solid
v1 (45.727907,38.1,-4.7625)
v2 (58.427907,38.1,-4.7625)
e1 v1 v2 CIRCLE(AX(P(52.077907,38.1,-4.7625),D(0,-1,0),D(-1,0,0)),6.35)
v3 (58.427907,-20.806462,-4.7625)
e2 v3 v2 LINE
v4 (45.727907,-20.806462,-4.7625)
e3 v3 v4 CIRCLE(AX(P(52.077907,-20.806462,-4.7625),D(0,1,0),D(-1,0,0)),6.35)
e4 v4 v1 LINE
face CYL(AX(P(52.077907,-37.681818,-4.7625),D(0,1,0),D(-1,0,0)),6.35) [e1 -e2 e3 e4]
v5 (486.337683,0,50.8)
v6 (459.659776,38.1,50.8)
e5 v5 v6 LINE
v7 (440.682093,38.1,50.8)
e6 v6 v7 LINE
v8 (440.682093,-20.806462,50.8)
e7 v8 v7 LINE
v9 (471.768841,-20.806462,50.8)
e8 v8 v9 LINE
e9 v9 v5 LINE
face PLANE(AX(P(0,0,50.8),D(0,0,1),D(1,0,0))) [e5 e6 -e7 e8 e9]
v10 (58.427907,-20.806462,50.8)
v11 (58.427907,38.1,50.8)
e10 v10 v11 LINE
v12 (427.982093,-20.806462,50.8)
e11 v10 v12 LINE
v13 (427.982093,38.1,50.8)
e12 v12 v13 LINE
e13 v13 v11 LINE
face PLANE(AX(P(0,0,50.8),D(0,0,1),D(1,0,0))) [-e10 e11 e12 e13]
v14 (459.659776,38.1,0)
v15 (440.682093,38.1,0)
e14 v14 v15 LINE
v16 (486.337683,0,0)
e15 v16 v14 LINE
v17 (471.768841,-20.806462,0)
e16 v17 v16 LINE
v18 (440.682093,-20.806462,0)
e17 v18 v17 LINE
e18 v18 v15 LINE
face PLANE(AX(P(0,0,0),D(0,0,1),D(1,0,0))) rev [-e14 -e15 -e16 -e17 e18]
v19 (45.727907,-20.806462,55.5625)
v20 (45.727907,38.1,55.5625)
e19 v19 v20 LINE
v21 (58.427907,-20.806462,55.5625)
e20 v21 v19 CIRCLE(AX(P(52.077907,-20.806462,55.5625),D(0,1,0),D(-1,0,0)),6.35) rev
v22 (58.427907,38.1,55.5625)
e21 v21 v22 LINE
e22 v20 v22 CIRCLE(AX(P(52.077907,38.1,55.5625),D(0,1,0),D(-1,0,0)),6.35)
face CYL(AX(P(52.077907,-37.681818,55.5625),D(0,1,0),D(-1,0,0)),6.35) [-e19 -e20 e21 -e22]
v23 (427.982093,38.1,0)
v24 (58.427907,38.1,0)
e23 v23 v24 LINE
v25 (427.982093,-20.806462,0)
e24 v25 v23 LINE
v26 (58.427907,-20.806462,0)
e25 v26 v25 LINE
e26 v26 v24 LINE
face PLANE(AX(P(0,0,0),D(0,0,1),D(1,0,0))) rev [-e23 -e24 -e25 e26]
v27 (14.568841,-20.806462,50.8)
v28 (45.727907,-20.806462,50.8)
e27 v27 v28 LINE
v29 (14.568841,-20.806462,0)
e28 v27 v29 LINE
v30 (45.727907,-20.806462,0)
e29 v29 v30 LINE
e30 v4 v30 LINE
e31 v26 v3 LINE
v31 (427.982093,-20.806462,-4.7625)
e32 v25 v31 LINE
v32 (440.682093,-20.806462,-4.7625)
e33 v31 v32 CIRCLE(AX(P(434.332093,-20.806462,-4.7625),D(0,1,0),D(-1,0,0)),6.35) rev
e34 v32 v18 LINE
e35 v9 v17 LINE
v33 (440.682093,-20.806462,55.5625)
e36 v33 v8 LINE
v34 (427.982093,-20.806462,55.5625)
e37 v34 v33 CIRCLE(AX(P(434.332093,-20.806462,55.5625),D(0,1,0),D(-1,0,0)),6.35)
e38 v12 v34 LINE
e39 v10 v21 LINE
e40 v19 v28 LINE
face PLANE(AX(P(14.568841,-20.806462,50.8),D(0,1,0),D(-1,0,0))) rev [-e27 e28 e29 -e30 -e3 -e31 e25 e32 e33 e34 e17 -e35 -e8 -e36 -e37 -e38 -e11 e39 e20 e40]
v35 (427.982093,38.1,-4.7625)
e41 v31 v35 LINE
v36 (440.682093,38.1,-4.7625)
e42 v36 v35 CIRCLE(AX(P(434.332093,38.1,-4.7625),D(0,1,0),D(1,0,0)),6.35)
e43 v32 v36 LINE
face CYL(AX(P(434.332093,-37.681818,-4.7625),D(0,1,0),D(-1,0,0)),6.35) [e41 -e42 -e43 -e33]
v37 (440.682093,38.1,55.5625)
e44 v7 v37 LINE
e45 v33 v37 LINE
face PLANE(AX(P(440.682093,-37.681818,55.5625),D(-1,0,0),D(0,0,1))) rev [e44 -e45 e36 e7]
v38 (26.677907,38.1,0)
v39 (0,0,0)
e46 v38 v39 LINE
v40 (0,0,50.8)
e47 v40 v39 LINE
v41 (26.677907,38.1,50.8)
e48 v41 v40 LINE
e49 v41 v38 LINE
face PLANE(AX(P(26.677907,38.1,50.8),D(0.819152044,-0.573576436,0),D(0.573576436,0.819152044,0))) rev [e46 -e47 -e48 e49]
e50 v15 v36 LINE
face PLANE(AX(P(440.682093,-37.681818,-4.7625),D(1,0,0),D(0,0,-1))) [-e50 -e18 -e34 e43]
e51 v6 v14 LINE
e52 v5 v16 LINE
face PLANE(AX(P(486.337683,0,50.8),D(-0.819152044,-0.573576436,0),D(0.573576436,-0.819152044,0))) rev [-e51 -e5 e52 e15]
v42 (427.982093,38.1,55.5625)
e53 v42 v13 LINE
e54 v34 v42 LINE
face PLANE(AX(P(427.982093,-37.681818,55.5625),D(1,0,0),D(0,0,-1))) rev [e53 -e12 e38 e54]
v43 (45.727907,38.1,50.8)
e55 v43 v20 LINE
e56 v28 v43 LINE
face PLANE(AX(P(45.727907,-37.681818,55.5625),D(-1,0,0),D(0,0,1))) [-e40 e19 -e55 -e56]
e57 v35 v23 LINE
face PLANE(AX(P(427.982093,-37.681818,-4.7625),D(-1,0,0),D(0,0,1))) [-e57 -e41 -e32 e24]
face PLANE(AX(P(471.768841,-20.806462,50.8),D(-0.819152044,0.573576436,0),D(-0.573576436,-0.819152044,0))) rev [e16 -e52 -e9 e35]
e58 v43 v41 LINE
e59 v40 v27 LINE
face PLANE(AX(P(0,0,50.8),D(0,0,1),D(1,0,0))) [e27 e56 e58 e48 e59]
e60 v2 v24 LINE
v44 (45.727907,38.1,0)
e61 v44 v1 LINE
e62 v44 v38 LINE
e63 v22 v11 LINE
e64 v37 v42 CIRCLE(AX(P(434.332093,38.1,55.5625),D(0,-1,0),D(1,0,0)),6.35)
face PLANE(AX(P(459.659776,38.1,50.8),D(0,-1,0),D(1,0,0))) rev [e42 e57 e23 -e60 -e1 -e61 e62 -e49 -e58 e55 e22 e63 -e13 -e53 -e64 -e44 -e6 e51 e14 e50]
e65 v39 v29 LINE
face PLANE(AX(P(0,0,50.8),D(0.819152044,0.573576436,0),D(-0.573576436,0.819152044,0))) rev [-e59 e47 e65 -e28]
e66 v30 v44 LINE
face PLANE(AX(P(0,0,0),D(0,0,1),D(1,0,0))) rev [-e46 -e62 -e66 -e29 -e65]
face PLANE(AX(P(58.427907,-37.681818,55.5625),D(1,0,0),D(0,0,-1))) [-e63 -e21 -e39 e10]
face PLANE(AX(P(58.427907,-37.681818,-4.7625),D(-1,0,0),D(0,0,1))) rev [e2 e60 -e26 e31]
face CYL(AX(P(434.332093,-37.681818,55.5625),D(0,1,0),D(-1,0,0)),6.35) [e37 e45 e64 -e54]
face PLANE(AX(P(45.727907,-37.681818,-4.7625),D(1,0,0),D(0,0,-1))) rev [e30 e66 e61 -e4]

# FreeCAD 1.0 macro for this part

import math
import FreeCAD as App
import Part
import Sketcher
from FreeCAD import Vector
Q = App.Units.Quantity

doc = App.newDocument("Part")
body = doc.addObject("PartDesign::Body", "Body")

sketch1 = body.newObject("Sketcher::SketchObject", "Sketch")
sketch1.AttachmentSupport = (doc.getObject("XY_Plane"), [""])
sketch1.MapMode = "FlatFace"
sketch1.addGeometry([
    Part.LineSegment(Vector(0, 0, 0), Vector(15, -21, 0)),
    Part.LineSegment(Vector(15, -21, 0), Vector(472, -21, 0)),
    Part.LineSegment(Vector(472, -21, 0), Vector(486, 0, 0)),
    Part.LineSegment(Vector(486, 0, 0), Vector(460, 38, 0)),
    Part.LineSegment(Vector(460, 38, 0), Vector(27, 38, 0)),
    Part.LineSegment(Vector(27, 38, 0), Vector(0, 0, 0)),
], False)
sketch1.addConstraint([
    Sketcher.Constraint("Coincident", 0, 2, 1, 1),
    Sketcher.Constraint("Coincident", 1, 2, 2, 1),
    Sketcher.Constraint("Coincident", 2, 2, 3, 1),
    Sketcher.Constraint("Coincident", 3, 2, 4, 1),
    Sketcher.Constraint("Coincident", 4, 2, 5, 1),
    Sketcher.Constraint("Coincident", 5, 2, 0, 1),
    Sketcher.Constraint("Horizontal", 1),
    Sketcher.Constraint("Horizontal", 4),
    Sketcher.Constraint("Coincident", 5, 2, -1, 1),
    Sketcher.Constraint("PointOnObject", 2, 2, -1),
    Sketcher.Constraint("Parallel", 0, 3),
    Sketcher.Constraint("Parallel", 2, 5),
    Sketcher.Constraint("Equal", 0, 2),
    Sketcher.Constraint("DistanceX", 1, 1, 1, 2, Q("18 in")),
    Sketcher.Constraint("Distance", 0, Q("1 in")),
    Sketcher.Constraint("Angle", 0, Q("-55 deg")),
    Sketcher.Constraint("DistanceY", -1, 1, 3, 2, Q("1.5 in")),
])
pad1 = body.newObject("PartDesign::Pad", "Pad")
pad1.Profile = sketch1
pad1.Length = Q("2 in")

sketch2 = body.newObject("Sketcher::SketchObject", "Sketch001")
sketch2.AttachmentSupport = (doc.getObject("XZ_Plane"), [""])
sketch2.MapMode = "FlatFace"
sketch2.AttachmentOffset = App.Placement(Vector(0, 0, -1.5 * 25.4), App.Rotation())
sketch2.addGeometry([
    Part.LineSegment(Vector(45.7, 50.8, 0), Vector(45.7, 55.6, 0)),
    Part.ArcOfCircle(Part.Circle(Vector(52.1, 55.6, 0), Vector(0, 0, 1), 6.3), math.radians(0), math.radians(180)),
    Part.LineSegment(Vector(58.4, 55.6, 0), Vector(58.4, 50.8, 0)),
    Part.LineSegment(Vector(58.4, 50.8, 0), Vector(45.7, 50.8, 0)),
], False)
sketch2.addConstraint([
    Sketcher.Constraint("Tangent", 0, 2, 1, 2),
    Sketcher.Constraint("Tangent", 1, 1, 2, 1),
    Sketcher.Constraint("Coincident", 2, 2, 3, 1),
    Sketcher.Constraint("Coincident", 3, 2, 0, 1),
    Sketcher.Constraint("Vertical", 0),
    Sketcher.Constraint("Vertical", 2),
    Sketcher.Constraint("Horizontal", 3),
    Sketcher.Constraint("Radius", 1, Q("0.25 in")),
    Sketcher.Constraint("DistanceY", -1, 1, 2, 2, Q("2 in")),
    Sketcher.Constraint("DistanceY", 0, 1, 0, 2, Q("0.1875 in")),
    Sketcher.Constraint("DistanceX", -1, 1, 1, 3, Q("52.077907 mm")),
])
pad2 = body.newObject("PartDesign::Pad", "Pad001")
pad2.Profile = sketch2
pad2.Length = 58.906462
doc.recompute()

datumplane = body.newObject("PartDesign::Plane", "DatumPlane")
datumplane.AttachmentSupport = (doc.getObject("YZ_Plane"), [""])
datumplane.MapMode = "FlatFace"
datumplane.AttachmentOffset = App.Placement(Vector(0, 0, 9.575 * 25.4), App.Rotation())
mirrored = body.newObject("PartDesign::Mirrored", "Mirrored")
mirrored.Originals = [pad2]
mirrored.MirrorPlane = (datumplane, [""])
body.Tip = mirrored
doc.recompute()

datumplane2 = body.newObject("PartDesign::Plane", "DatumPlane001")
datumplane2.AttachmentSupport = (doc.getObject("XY_Plane"), [""])
datumplane2.MapMode = "FlatFace"
datumplane2.AttachmentOffset = App.Placement(Vector(0, 0, 1 * 25.4), App.Rotation())
mirrored2 = body.newObject("PartDesign::Mirrored", "Mirrored001")
mirrored2.Originals = [pad2]
mirrored2.MirrorPlane = (datumplane2, [""])
body.Tip = mirrored2

sketch3 = body.newObject("Sketcher::SketchObject", "Sketch002")
sketch3.AttachmentSupport = (doc.getObject("XZ_Plane"), [""])
sketch3.MapMode = "FlatFace"
sketch3.AttachmentOffset = App.Placement(Vector(0, 0, -1.5 * 25.4), App.Rotation())
sketch3.addGeometry([
    Part.LineSegment(Vector(440.7, 0, 0), Vector(440.7, -4.8, 0)),
    Part.ArcOfCircle(Part.Circle(Vector(434.3, -4.8, 0), Vector(0, 0, 1), 6.3), math.radians(180), math.radians(360)),
    Part.LineSegment(Vector(428, -4.8, 0), Vector(428, 0, 0)),
    Part.LineSegment(Vector(428, 0, 0), Vector(440.7, 0, 0)),
], False)
sketch3.addConstraint([
    Sketcher.Constraint("Tangent", 0, 2, 1, 2),
    Sketcher.Constraint("Tangent", 1, 1, 2, 1),
    Sketcher.Constraint("Coincident", 2, 2, 3, 1),
    Sketcher.Constraint("Coincident", 3, 2, 0, 1),
    Sketcher.Constraint("Vertical", 0),
    Sketcher.Constraint("Vertical", 2),
    Sketcher.Constraint("Horizontal", 3),
    Sketcher.Constraint("PointOnObject", 2, 2, -1),
    Sketcher.Constraint("Radius", 1, Q("0.25 in")),
    Sketcher.Constraint("DistanceY", 0, 2, 0, 1, Q("0.1875 in")),
    Sketcher.Constraint("DistanceX", -1, 1, 1, 3, Q("434.332093 mm")),
])
pad3 = body.newObject("PartDesign::Pad", "Pad002")
pad3.Profile = sketch3
pad3.Length = 58.906462

doc.recompute()
